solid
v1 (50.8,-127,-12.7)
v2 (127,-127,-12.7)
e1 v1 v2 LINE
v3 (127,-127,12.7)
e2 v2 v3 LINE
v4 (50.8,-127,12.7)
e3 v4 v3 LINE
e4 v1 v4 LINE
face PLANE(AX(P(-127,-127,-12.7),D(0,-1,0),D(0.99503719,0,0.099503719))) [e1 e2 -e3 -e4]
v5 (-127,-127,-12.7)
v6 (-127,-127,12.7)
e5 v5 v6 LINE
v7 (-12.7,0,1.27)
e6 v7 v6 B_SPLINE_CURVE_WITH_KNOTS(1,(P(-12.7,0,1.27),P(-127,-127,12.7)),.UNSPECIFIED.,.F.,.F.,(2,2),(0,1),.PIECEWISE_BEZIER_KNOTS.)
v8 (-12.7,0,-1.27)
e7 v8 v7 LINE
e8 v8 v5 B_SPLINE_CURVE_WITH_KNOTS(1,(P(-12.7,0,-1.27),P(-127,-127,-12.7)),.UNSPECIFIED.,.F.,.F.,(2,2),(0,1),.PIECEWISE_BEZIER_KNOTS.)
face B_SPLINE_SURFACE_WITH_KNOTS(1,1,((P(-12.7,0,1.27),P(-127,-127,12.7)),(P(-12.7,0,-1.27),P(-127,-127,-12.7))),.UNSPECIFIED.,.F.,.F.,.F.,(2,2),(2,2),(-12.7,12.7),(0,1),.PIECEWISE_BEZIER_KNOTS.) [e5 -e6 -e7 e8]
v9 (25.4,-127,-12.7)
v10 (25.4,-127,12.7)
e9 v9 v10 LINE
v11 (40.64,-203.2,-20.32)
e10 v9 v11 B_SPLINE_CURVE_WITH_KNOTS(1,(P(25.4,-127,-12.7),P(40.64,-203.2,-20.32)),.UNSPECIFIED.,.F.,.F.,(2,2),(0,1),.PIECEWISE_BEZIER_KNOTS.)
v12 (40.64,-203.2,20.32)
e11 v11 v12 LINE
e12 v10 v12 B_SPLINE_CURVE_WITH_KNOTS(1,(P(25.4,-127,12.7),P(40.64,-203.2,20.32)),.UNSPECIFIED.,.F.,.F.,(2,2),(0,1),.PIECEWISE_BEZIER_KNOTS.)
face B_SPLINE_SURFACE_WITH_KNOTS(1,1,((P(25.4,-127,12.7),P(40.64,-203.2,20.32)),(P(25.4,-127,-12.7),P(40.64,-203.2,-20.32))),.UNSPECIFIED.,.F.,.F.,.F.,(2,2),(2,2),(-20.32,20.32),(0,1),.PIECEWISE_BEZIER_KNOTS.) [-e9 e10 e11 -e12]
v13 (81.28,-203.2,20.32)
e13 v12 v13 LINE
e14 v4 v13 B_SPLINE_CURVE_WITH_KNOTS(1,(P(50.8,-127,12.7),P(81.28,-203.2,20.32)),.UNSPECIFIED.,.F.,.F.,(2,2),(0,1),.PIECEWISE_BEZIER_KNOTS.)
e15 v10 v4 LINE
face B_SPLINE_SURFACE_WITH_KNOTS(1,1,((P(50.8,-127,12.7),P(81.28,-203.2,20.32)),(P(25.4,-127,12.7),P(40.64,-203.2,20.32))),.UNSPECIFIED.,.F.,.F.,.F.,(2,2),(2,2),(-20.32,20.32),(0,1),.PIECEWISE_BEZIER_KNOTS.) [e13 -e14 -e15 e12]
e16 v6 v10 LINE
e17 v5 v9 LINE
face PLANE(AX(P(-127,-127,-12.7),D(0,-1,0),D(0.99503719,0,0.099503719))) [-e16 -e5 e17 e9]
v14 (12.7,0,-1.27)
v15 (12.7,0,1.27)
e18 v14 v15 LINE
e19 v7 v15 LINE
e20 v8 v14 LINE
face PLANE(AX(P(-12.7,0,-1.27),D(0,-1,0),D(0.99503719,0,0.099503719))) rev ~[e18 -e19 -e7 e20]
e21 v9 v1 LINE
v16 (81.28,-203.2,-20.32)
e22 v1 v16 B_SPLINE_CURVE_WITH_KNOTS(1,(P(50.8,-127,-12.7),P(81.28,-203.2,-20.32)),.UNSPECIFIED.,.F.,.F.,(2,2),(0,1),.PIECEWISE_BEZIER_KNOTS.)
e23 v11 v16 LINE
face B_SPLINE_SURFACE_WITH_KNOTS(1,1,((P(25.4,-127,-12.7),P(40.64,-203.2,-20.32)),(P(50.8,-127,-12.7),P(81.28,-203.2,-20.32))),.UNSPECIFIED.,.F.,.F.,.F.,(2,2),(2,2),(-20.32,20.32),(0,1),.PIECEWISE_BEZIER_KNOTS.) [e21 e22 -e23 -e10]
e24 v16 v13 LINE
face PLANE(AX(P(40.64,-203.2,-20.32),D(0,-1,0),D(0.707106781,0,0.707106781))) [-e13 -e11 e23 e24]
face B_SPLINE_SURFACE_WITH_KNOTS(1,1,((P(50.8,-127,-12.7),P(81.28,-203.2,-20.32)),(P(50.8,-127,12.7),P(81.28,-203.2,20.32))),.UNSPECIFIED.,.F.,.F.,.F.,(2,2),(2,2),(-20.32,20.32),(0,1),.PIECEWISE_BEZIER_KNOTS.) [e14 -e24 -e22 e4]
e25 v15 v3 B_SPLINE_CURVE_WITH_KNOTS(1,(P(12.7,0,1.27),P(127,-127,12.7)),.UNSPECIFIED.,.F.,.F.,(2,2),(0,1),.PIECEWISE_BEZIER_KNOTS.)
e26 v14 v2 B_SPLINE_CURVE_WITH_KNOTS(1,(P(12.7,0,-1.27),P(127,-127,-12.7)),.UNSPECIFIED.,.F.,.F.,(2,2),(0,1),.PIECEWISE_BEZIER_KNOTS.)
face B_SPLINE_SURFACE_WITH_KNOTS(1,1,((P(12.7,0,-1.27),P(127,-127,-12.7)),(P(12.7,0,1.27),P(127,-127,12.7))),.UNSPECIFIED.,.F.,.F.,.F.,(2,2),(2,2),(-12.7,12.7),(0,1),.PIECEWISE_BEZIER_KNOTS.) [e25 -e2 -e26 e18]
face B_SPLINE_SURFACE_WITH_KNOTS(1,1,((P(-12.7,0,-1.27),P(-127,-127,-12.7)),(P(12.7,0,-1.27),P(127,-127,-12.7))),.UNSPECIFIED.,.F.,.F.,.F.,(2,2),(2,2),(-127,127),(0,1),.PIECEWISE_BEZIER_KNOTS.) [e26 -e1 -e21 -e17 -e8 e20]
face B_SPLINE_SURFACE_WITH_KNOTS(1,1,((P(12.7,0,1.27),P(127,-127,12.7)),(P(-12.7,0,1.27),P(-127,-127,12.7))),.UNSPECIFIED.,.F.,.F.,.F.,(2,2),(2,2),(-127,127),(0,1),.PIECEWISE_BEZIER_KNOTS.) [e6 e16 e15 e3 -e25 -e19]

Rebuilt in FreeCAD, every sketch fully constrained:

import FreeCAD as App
import Part
import Sketcher
Q = App.Units.Quantity

doc = App.newDocument("Part")
params = doc.addObject("Spreadsheet::Sheet", "Params")
for row, (alias, value) in enumerate([
    ("sketch1_width", "1 in"),
    ("sketch1_height", "0.1 in"),
    ("sketch2_width", "10 in"),
    ("sketch2_height", "1 in"),
    ("sketch3_width", "1 in"),
    ("sketch4_width", "1.6 in"),
], start=1):
    params.set(f"A{row}", alias)
    params.set(f"B{row}", "=" + value)
    params.setAlias(f"B{row}", alias)

body = doc.addObject("PartDesign::Body", "Body")

# Sketch on XZ plane
sketch1 = doc.addObject("Sketcher::SketchObject", "Sketch")
body.addObject(sketch1)
sketch1.AttachmentSupport = (doc.XZ_Plane, [""])
sketch1.MapMode = "FlatFace"
sketch1.addGeometry([
    Part.LineSegment(App.Vector(-12.7, 1.3, 0), App.Vector(-12.7, -1.3, 0)),
    Part.LineSegment(App.Vector(-12.7, -1.3, 0), App.Vector(12.7, -1.3, 0)),
    Part.LineSegment(App.Vector(12.7, -1.3, 0), App.Vector(12.7, 1.3, 0)),
    Part.LineSegment(App.Vector(12.7, 1.3, 0), App.Vector(-12.7, 1.3, 0)),
], False)
sketch1.addConstraint([
    Sketcher.Constraint("Coincident", 0, 2, 1, 1),
    Sketcher.Constraint("Coincident", 1, 2, 2, 1),
    Sketcher.Constraint("Coincident", 2, 2, 3, 1),
    Sketcher.Constraint("Coincident", 3, 2, 0, 1),
    Sketcher.Constraint("Vertical", 0),
    Sketcher.Constraint("Horizontal", 1),
    Sketcher.Constraint("Vertical", 2),
    Sketcher.Constraint("Horizontal", 3),
    Sketcher.Constraint("Symmetric", 0, 2, 2, 2, -1, 1),
    Sketcher.Constraint("DistanceX", 1, 1, 1, 2, Q("1 in")),
    Sketcher.Constraint("DistanceY", 0, 2, 0, 1, Q("0.1 in")),
])
sketch1.setExpression("Constraints[9]", "Params.sketch1_width")
sketch1.setExpression("Constraints[10]", "Params.sketch1_height")

# Sketch on XZ plane
sketch2 = doc.addObject("Sketcher::SketchObject", "Sketch001")
body.addObject(sketch2)
sketch2.AttachmentSupport = (doc.XZ_Plane, [""])
sketch2.MapMode = "FlatFace"
sketch2.AttachmentOffset = App.Placement(App.Vector(0, 0, 5 * 25.4), App.Rotation())
sketch2.addGeometry([
    Part.LineSegment(App.Vector(-127, 13, 0), App.Vector(-127, -13, 0)),
    Part.LineSegment(App.Vector(-127, -13, 0), App.Vector(127, -13, 0)),
    Part.LineSegment(App.Vector(127, -13, 0), App.Vector(127, 13, 0)),
    Part.LineSegment(App.Vector(127, 13, 0), App.Vector(-127, 13, 0)),
], False)
sketch2.addConstraint([
    Sketcher.Constraint("Coincident", 0, 2, 1, 1),
    Sketcher.Constraint("Coincident", 1, 2, 2, 1),
    Sketcher.Constraint("Coincident", 2, 2, 3, 1),
    Sketcher.Constraint("Coincident", 3, 2, 0, 1),
    Sketcher.Constraint("Vertical", 0),
    Sketcher.Constraint("Horizontal", 1),
    Sketcher.Constraint("Vertical", 2),
    Sketcher.Constraint("Horizontal", 3),
    Sketcher.Constraint("Symmetric", 0, 2, 2, 2, -1, 1),
    Sketcher.Constraint("DistanceX", 1, 1, 1, 2, Q("10 in")),
    Sketcher.Constraint("DistanceY", 0, 2, 0, 1, Q("1 in")),
])
sketch2.setExpression("Constraints[9]", "Params.sketch2_width")
sketch2.setExpression("Constraints[10]", "Params.sketch2_height")

additiveloft = doc.addObject("PartDesign::AdditiveLoft", "AdditiveLoft")
body.addObject(additiveloft)
additiveloft.Profile = sketch1
additiveloft.Sections = [sketch2]

# Sketch on XZ plane
sketch3 = doc.addObject("Sketcher::SketchObject", "Sketch002")
body.addObject(sketch3)
sketch3.AttachmentSupport = (doc.XZ_Plane, [""])
sketch3.MapMode = "FlatFace"
sketch3.AttachmentOffset = App.Placement(App.Vector(0, 0, 5 * 25.4), App.Rotation())
sketch3.addGeometry([
    Part.LineSegment(App.Vector(25, 13, 0), App.Vector(25, -13, 0)),
    Part.LineSegment(App.Vector(25, -13, 0), App.Vector(51, -13, 0)),
    Part.LineSegment(App.Vector(51, -13, 0), App.Vector(51, 13, 0)),
    Part.LineSegment(App.Vector(51, 13, 0), App.Vector(25, 13, 0)),
], False)
sketch3.addConstraint([
    Sketcher.Constraint("Coincident", 0, 2, 1, 1),
    Sketcher.Constraint("Coincident", 1, 2, 2, 1),
    Sketcher.Constraint("Coincident", 2, 2, 3, 1),
    Sketcher.Constraint("Coincident", 3, 2, 0, 1),
    Sketcher.Constraint("Vertical", 0),
    Sketcher.Constraint("Horizontal", 1),
    Sketcher.Constraint("Vertical", 2),
    Sketcher.Constraint("Horizontal", 3),
    Sketcher.Constraint("Equal", 3, 0),
    Sketcher.Constraint("DistanceX", 1, 1, 1, 2, Q("1 in")),
    Sketcher.Constraint("DistanceX", -1, 1, 0, 2, Q("1 in")),
    Sketcher.Constraint("DistanceY", 0, 2, -1, 1, Q("0.5 in")),
])
sketch3.setExpression("Constraints[9]", "Params.sketch3_width")

# Sketch on XZ plane
sketch4 = doc.addObject("Sketcher::SketchObject", "Sketch003")
body.addObject(sketch4)
sketch4.AttachmentSupport = (doc.XZ_Plane, [""])
sketch4.MapMode = "FlatFace"
sketch4.AttachmentOffset = App.Placement(App.Vector(0, 0, 8 * 25.4), App.Rotation())
sketch4.addGeometry([
    Part.LineSegment(App.Vector(41, 20, 0), App.Vector(41, -20, 0)),
    Part.LineSegment(App.Vector(41, -20, 0), App.Vector(81, -20, 0)),
    Part.LineSegment(App.Vector(81, -20, 0), App.Vector(81, 20, 0)),
    Part.LineSegment(App.Vector(81, 20, 0), App.Vector(41, 20, 0)),
], False)
sketch4.addConstraint([
    Sketcher.Constraint("Coincident", 0, 2, 1, 1),
    Sketcher.Constraint("Coincident", 1, 2, 2, 1),
    Sketcher.Constraint("Coincident", 2, 2, 3, 1),
    Sketcher.Constraint("Coincident", 3, 2, 0, 1),
    Sketcher.Constraint("Vertical", 0),
    Sketcher.Constraint("Horizontal", 1),
    Sketcher.Constraint("Vertical", 2),
    Sketcher.Constraint("Horizontal", 3),
    Sketcher.Constraint("Equal", 3, 0),
    Sketcher.Constraint("DistanceX", 1, 1, 1, 2, Q("1.6 in")),
    Sketcher.Constraint("DistanceX", -1, 1, 0, 2, Q("1.6 in")),
    Sketcher.Constraint("DistanceY", 0, 2, -1, 1, Q("0.8 in")),
])
sketch4.setExpression("Constraints[9]", "Params.sketch4_width")

additiveloft2 = doc.addObject("PartDesign::AdditiveLoft", "AdditiveLoft001")
body.addObject(additiveloft2)
additiveloft2.Profile = sketch3
additiveloft2.Sections = [sketch4]

doc.recompute()
